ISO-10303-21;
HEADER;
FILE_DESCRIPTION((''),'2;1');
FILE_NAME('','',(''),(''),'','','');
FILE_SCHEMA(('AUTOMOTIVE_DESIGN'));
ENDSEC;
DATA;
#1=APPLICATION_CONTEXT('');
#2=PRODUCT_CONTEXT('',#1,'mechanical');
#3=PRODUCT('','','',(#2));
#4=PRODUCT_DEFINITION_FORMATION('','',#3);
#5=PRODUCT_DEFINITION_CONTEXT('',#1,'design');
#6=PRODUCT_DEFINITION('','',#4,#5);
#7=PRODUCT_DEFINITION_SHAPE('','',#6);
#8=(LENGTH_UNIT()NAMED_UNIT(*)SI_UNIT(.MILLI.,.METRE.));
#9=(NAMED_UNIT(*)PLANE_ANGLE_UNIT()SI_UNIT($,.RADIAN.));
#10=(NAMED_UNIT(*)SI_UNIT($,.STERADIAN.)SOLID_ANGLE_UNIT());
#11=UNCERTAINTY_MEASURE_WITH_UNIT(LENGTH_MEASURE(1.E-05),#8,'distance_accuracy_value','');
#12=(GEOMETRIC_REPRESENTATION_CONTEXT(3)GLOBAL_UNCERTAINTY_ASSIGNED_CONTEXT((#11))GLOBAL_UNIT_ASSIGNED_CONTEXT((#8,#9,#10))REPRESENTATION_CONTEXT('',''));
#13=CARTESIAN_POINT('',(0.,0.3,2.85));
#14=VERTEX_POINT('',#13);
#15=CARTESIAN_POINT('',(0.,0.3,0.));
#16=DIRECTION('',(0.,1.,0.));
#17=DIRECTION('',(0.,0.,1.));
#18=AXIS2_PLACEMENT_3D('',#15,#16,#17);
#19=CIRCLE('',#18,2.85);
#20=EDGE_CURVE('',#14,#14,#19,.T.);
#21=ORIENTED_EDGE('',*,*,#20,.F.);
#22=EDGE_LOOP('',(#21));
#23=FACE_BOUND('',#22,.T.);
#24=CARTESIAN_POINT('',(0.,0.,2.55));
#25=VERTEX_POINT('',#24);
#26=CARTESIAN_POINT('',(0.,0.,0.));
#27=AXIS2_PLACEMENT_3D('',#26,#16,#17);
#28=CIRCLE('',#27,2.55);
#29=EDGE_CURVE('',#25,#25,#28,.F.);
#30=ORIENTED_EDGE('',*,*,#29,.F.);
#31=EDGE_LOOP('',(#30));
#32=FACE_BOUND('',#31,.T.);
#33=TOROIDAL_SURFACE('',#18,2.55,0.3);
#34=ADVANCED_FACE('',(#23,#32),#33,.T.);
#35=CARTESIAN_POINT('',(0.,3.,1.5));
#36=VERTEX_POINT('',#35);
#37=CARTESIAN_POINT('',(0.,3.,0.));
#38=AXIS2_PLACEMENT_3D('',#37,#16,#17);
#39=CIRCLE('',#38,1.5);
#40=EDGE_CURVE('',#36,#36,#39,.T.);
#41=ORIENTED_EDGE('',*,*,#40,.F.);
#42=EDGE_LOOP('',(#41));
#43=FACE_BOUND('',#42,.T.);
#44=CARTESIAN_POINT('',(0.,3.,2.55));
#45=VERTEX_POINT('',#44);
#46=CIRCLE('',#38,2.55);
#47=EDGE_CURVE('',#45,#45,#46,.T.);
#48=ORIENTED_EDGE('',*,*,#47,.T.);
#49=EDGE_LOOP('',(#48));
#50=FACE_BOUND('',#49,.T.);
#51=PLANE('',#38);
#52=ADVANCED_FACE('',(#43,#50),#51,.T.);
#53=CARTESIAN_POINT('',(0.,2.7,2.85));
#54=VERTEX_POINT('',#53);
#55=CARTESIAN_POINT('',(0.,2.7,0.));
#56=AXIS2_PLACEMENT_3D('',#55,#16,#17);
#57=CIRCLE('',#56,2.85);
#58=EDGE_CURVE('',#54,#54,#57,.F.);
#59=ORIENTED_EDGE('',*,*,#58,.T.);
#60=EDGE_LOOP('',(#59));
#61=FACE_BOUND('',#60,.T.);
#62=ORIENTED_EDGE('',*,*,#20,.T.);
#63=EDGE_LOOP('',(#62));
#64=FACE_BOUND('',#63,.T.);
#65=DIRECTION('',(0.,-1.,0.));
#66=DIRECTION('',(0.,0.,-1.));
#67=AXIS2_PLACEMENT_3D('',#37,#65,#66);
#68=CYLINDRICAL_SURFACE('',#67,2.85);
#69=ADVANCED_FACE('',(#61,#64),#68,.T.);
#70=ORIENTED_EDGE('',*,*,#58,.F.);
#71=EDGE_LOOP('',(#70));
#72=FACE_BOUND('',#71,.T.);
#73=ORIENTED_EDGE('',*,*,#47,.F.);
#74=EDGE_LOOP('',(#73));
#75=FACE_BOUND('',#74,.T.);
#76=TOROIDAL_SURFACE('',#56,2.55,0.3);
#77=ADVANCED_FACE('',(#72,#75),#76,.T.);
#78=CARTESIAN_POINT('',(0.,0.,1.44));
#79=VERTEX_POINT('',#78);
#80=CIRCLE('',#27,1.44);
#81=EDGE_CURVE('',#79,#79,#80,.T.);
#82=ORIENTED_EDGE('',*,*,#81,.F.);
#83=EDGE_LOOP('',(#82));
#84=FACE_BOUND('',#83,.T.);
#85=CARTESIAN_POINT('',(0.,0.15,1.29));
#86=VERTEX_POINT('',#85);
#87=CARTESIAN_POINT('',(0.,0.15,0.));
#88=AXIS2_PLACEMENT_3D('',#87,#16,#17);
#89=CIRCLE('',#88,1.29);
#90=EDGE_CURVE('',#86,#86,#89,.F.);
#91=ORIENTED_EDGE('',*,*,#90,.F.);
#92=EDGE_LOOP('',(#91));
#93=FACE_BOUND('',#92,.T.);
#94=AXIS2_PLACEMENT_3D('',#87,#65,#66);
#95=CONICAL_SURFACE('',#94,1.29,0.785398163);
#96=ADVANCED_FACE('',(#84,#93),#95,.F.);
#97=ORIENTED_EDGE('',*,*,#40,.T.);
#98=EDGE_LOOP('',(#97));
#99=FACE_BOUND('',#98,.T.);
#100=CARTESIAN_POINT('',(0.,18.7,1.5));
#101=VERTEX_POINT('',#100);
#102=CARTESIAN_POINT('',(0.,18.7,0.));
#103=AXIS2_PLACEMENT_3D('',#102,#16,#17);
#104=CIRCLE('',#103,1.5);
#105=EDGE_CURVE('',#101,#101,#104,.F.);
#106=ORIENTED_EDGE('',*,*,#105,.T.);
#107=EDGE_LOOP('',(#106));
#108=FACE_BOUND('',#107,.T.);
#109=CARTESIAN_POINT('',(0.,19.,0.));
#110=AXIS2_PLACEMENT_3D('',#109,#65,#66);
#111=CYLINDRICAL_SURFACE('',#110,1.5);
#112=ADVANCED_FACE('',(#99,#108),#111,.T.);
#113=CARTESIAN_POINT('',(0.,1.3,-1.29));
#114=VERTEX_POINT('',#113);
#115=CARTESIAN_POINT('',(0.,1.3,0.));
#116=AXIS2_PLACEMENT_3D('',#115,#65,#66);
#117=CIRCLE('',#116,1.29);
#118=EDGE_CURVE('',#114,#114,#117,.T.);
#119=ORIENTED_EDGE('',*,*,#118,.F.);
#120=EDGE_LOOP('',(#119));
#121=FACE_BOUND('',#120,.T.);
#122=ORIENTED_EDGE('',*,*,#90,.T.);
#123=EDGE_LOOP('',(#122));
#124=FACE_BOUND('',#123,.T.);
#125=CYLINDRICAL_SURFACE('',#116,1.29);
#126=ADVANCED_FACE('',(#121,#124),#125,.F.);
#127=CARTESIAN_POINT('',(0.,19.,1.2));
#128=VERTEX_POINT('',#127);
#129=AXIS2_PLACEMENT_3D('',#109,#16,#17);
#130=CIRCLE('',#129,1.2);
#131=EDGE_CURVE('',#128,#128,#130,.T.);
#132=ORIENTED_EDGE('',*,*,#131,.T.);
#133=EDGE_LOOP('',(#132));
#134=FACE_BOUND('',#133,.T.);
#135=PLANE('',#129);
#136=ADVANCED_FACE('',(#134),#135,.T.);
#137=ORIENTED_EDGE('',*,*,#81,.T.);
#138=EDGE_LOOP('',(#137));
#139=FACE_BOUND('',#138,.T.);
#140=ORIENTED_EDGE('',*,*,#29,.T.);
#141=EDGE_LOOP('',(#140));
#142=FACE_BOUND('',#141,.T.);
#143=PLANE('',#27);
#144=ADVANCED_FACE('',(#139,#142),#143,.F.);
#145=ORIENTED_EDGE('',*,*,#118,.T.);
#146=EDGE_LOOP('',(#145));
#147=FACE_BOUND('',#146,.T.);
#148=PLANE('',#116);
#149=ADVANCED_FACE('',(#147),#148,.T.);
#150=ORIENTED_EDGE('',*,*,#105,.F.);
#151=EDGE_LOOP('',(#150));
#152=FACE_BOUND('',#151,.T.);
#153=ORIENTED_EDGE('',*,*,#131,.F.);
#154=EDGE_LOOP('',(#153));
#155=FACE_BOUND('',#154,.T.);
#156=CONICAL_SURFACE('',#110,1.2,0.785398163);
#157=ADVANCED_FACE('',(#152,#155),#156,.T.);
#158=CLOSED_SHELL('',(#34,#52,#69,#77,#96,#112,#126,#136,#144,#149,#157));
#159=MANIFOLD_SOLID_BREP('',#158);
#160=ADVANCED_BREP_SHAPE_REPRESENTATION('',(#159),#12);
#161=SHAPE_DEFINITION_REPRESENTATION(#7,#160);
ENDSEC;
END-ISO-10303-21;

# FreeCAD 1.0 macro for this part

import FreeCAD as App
import Part
import Sketcher

V = App.Vector
Q = App.Units.Quantity


def edges_at(feature, points):
    """Names of the edges that pass closest to the given points."""
    edges = feature.Shape.Edges
    near = lambda p: min(range(len(edges)), key=lambda i: edges[i].distToShape(Part.Vertex(*p))[0])
    return sorted({f"Edge{near(p) + 1}" for p in points})

doc = App.newDocument("Part")
params = doc.addObject("Spreadsheet::Sheet", "Params")
for row, (alias, value) in enumerate([
    ("sketch1_diameter", "5.7 mm"),
    ("pad1_length", "3 mm"),
    ("sketch2_diameter", "3 mm"),
    ("pad2_length", "16 mm"),
    ("sketch3_diameter", "2.58 mm"),
    ("pocket1_length", "1.3 mm"),
    ("fillet_radius", "0.3 mm"),
    ("chamfer_size", "0.3 mm"),
    ("chamfer2_size", "0.15 mm"),
], start=1):
    params.set(f"A{row}", alias)
    params.set(f"B{row}", "=" + value)
    params.setAlias(f"B{row}", alias)

body = doc.addObject("PartDesign::Body", "Body")

# Sketch on XZ plane
sketch1 = body.newObject("Sketcher::SketchObject", "Sketch")
sketch1.AttachmentSupport = (doc.getObject("XZ_Plane"), [""])
sketch1.MapMode = "FlatFace"
sketch1.addGeometry(Part.Circle(V(0, 0, 0), V(0, 0, 1), 2.85), False)
sketch1.addConstraint([
    Sketcher.Constraint("Coincident", 0, 3, -1, 1),
    Sketcher.Constraint("Diameter", 0, Q("5.7 mm")),
])
sketch1.setExpression("Constraints[1]", "Params.sketch1_diameter")
pad1 = body.newObject("PartDesign::Pad", "Pad")
pad1.Profile = sketch1
pad1.setExpression("Length", "Params.pad1_length")
pad1.Reversed = True

# Sketch on XZ plane
sketch2 = body.newObject("Sketcher::SketchObject", "Sketch001")
sketch2.AttachmentSupport = (doc.getObject("XZ_Plane"), [""])
sketch2.MapMode = "FlatFace"
sketch2.AttachmentOffset = App.Placement(V(0, 0, -3), App.Rotation())
sketch2.addGeometry(Part.Circle(V(0, 0, 0), V(0, 0, 1), 1.5), False)
sketch2.addConstraint([
    Sketcher.Constraint("Coincident", 0, 3, -1, 1),
    Sketcher.Constraint("Diameter", 0, Q("3 mm")),
])
sketch2.setExpression("Constraints[1]", "Params.sketch2_diameter")
pad2 = body.newObject("PartDesign::Pad", "Pad001")
pad2.Profile = sketch2
pad2.setExpression("Length", "Params.pad2_length")
pad2.Reversed = True

# Sketch on XZ plane
sketch3 = body.newObject("Sketcher::SketchObject", "Sketch002")
sketch3.AttachmentSupport = (doc.getObject("XZ_Plane"), [""])
sketch3.MapMode = "FlatFace"
sketch3.addGeometry(Part.Circle(V(0, 0, 0), V(0, 0, 1), 1.29), False)
sketch3.addConstraint([
    Sketcher.Constraint("Coincident", 0, 3, -1, 1),
    Sketcher.Constraint("Diameter", 0, Q("2.58 mm")),
])
sketch3.setExpression("Constraints[1]", "Params.sketch3_diameter")
pocket1 = body.newObject("PartDesign::Pocket", "Pocket")
pocket1.Profile = sketch3
pocket1.setExpression("Length", "Params.pocket1_length")
doc.recompute()

fillet = body.newObject("PartDesign::Fillet", "Fillet")
fillet.Base = (pocket1, edges_at(pocket1, [(0, 0, -2.85), (0, 3, -2.85)]))
fillet.setExpression("Radius", "Params.fillet_radius")
doc.recompute()

chamfer = body.newObject("PartDesign::Chamfer", "Chamfer")
chamfer.Base = (fillet, edges_at(fillet, [(0, 19, -1.5)]))
chamfer.setExpression("Size", "Params.chamfer_size")
doc.recompute()

chamfer2 = body.newObject("PartDesign::Chamfer", "Chamfer001")
chamfer2.Base = (chamfer, edges_at(chamfer, [(0, 0, 1.29)]))
chamfer2.setExpression("Size", "Params.chamfer2_size")

doc.recompute()
